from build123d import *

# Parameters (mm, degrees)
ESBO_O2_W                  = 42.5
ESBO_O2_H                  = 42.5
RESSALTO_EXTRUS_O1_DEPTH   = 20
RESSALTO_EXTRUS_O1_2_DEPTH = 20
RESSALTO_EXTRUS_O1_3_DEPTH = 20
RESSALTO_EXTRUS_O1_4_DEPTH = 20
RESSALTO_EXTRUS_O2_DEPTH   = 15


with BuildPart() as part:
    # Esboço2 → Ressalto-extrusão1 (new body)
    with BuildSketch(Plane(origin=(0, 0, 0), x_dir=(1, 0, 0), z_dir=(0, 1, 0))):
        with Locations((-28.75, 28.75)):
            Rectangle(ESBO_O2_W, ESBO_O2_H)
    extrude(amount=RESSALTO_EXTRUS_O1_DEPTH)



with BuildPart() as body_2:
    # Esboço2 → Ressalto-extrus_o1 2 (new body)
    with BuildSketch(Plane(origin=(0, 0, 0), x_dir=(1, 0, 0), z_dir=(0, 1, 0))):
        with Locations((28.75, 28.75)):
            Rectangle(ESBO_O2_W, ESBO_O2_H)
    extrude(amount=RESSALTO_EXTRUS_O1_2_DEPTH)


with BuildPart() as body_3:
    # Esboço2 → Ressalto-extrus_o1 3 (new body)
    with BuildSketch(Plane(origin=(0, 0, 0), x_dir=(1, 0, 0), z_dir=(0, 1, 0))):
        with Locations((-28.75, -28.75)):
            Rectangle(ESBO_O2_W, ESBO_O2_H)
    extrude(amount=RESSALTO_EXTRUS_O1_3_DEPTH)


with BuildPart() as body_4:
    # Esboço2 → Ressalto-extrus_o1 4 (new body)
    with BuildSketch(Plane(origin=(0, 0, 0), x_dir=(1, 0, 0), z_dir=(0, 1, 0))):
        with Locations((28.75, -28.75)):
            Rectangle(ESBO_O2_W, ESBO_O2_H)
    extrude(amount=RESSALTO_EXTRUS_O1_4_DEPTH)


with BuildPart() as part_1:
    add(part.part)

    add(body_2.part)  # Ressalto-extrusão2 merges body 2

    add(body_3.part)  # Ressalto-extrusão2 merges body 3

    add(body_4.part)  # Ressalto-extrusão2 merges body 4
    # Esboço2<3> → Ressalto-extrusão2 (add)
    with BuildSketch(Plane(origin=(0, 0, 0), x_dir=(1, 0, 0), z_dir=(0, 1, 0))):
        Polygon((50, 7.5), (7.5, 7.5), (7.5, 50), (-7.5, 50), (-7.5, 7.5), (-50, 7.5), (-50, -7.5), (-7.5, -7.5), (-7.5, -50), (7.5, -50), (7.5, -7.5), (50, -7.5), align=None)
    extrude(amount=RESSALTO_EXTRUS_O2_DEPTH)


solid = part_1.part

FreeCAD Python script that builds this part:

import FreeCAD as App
import Part
import Sketcher
from FreeCAD import Vector

doc = App.newDocument("Part")
body = doc.addObject("PartDesign::Body", "Body")

sketch1 = body.newObject("Sketcher::SketchObject", "Sketch")
sketch1.AttachmentSupport = (doc.getObject("XZ_Plane"), [""])
sketch1.MapMode = "FlatFace"
sketch1.addGeometry([
    Part.LineSegment(Vector(-50, -50, 0), Vector(-50, -8, 0)),
    Part.LineSegment(Vector(-50, -8, 0), Vector(-8, -8, 0)),
    Part.LineSegment(Vector(-8, -8, 0), Vector(-8, -50, 0)),
    Part.LineSegment(Vector(-8, -50, 0), Vector(-50, -50, 0)),
], False)
sketch1.addConstraint([
    Sketcher.Constraint("Coincident", 0, 2, 1, 1),
    Sketcher.Constraint("Coincident", 1, 2, 2, 1),
    Sketcher.Constraint("Coincident", 2, 2, 3, 1),
    Sketcher.Constraint("Coincident", 3, 2, 0, 1),
    Sketcher.Constraint("Vertical", 0),
    Sketcher.Constraint("Horizontal", 1),
    Sketcher.Constraint("Vertical", 2),
    Sketcher.Constraint("Horizontal", 3),
    Sketcher.Constraint("Equal", 3, 0),
    Sketcher.Constraint("DistanceX", 1, 1, 1, 2, 42.5),
    Sketcher.Constraint("DistanceX", 0, 2, -1, 1, 50.0),
    Sketcher.Constraint("DistanceY", 2, 2, -1, 1, 50.0),
])
pad1 = body.newObject("PartDesign::Pad", "Pad")
pad1.Profile = sketch1
pad1.Length = 20
pad1.Reversed = True
body2 = doc.addObject("PartDesign::Body", "Body001")

sketch2 = body2.newObject("Sketcher::SketchObject", "Sketch001")
sketch2.AttachmentSupport = (doc.getObject("XZ_Plane001"), [""])
sketch2.MapMode = "FlatFace"
sketch2.addGeometry([
    Part.LineSegment(Vector(8, -50, 0), Vector(8, -8, 0)),
    Part.LineSegment(Vector(8, -8, 0), Vector(50, -8, 0)),
    Part.LineSegment(Vector(50, -8, 0), Vector(50, -50, 0)),
    Part.LineSegment(Vector(50, -50, 0), Vector(8, -50, 0)),
], False)
sketch2.addConstraint([
    Sketcher.Constraint("Coincident", 0, 2, 1, 1),
    Sketcher.Constraint("Coincident", 1, 2, 2, 1),
    Sketcher.Constraint("Coincident", 2, 2, 3, 1),
    Sketcher.Constraint("Coincident", 3, 2, 0, 1),
    Sketcher.Constraint("Vertical", 0),
    Sketcher.Constraint("Horizontal", 1),
    Sketcher.Constraint("Vertical", 2),
    Sketcher.Constraint("Horizontal", 3),
    Sketcher.Constraint("Equal", 3, 0),
    Sketcher.Constraint("DistanceX", 1, 1, 1, 2, 42.5),
    Sketcher.Constraint("DistanceX", -1, 1, 1, 2, 50.0),
    Sketcher.Constraint("DistanceY", 2, 2, -1, 1, 50.0),
])
pad2 = body2.newObject("PartDesign::Pad", "Pad001")
pad2.Profile = sketch2
pad2.Length = 20
pad2.Reversed = True
body3 = doc.addObject("PartDesign::Body", "Body002")

sketch3 = body3.newObject("Sketcher::SketchObject", "Sketch002")
sketch3.AttachmentSupport = (doc.getObject("XZ_Plane002"), [""])
sketch3.MapMode = "FlatFace"
sketch3.addGeometry([
    Part.LineSegment(Vector(-50, 8, 0), Vector(-50, 50, 0)),
    Part.LineSegment(Vector(-50, 50, 0), Vector(-8, 50, 0)),
    Part.LineSegment(Vector(-8, 50, 0), Vector(-8, 8, 0)),
    Part.LineSegment(Vector(-8, 8, 0), Vector(-50, 8, 0)),
], False)
sketch3.addConstraint([
    Sketcher.Constraint("Coincident", 0, 2, 1, 1),
    Sketcher.Constraint("Coincident", 1, 2, 2, 1),
    Sketcher.Constraint("Coincident", 2, 2, 3, 1),
    Sketcher.Constraint("Coincident", 3, 2, 0, 1),
    Sketcher.Constraint("Vertical", 0),
    Sketcher.Constraint("Horizontal", 1),
    Sketcher.Constraint("Vertical", 2),
    Sketcher.Constraint("Horizontal", 3),
    Sketcher.Constraint("Equal", 3, 0),
    Sketcher.Constraint("DistanceX", 1, 1, 1, 2, 42.5),
    Sketcher.Constraint("DistanceX", 0, 2, -1, 1, 50.0),
    Sketcher.Constraint("DistanceY", -1, 1, 0, 2, 50.0),
])
pad3 = body3.newObject("PartDesign::Pad", "Pad002")
pad3.Profile = sketch3
pad3.Length = 20
pad3.Reversed = True
body4 = doc.addObject("PartDesign::Body", "Body003")

sketch4 = body4.newObject("Sketcher::SketchObject", "Sketch003")
sketch4.AttachmentSupport = (doc.getObject("XZ_Plane003"), [""])
sketch4.MapMode = "FlatFace"
sketch4.addGeometry([
    Part.LineSegment(Vector(8, 8, 0), Vector(8, 50, 0)),
    Part.LineSegment(Vector(8, 50, 0), Vector(50, 50, 0)),
    Part.LineSegment(Vector(50, 50, 0), Vector(50, 8, 0)),
    Part.LineSegment(Vector(50, 8, 0), Vector(8, 8, 0)),
], False)
sketch4.addConstraint([
    Sketcher.Constraint("Coincident", 0, 2, 1, 1),
    Sketcher.Constraint("Coincident", 1, 2, 2, 1),
    Sketcher.Constraint("Coincident", 2, 2, 3, 1),
    Sketcher.Constraint("Coincident", 3, 2, 0, 1),
    Sketcher.Constraint("Vertical", 0),
    Sketcher.Constraint("Horizontal", 1),
    Sketcher.Constraint("Vertical", 2),
    Sketcher.Constraint("Horizontal", 3),
    Sketcher.Constraint("Equal", 3, 0),
    Sketcher.Constraint("DistanceX", 1, 1, 1, 2, 42.5),
    Sketcher.Constraint("DistanceY", -1, 1, 0, 2, 50.0),
    Sketcher.Constraint("DistanceX", -1, 1, 1, 2, 50.0),
])
pad4 = body4.newObject("PartDesign::Pad", "Pad003")
pad4.Profile = sketch4
pad4.Length = 20
pad4.Reversed = True
body.AllowCompound = True
doc.recompute()

boolean = body.newObject("PartDesign::Boolean", "Boolean")
boolean.Type = "Fuse"
boolean.addObjects([body2])
doc.recompute()

boolean2 = body.newObject("PartDesign::Boolean", "Boolean001")
boolean2.Type = "Fuse"
boolean2.addObjects([body3])
doc.recompute()

boolean3 = body.newObject("PartDesign::Boolean", "Boolean002")
boolean3.Type = "Fuse"
boolean3.addObjects([body4])

sketch5 = body.newObject("Sketcher::SketchObject", "Sketch004")
sketch5.AttachmentSupport = (doc.getObject("XZ_Plane"), [""])
sketch5.MapMode = "FlatFace"
sketch5.addGeometry([
    Part.LineSegment(Vector(50, -8, 0), Vector(8, -8, 0)),
    Part.LineSegment(Vector(8, -8, 0), Vector(8, -50, 0)),
    Part.LineSegment(Vector(8, -50, 0), Vector(-8, -50, 0)),
    Part.LineSegment(Vector(-8, -50, 0), Vector(-8, -8, 0)),
    Part.LineSegment(Vector(-8, -8, 0), Vector(-50, -8, 0)),
    Part.LineSegment(Vector(-50, -8, 0), Vector(-50, 8, 0)),
    Part.LineSegment(Vector(-50, 8, 0), Vector(-8, 8, 0)),
    Part.LineSegment(Vector(-8, 8, 0), Vector(-8, 50, 0)),
    Part.LineSegment(Vector(-8, 50, 0), Vector(8, 50, 0)),
    Part.LineSegment(Vector(8, 50, 0), Vector(8, 8, 0)),
    Part.LineSegment(Vector(8, 8, 0), Vector(50, 8, 0)),
    Part.LineSegment(Vector(50, 8, 0), Vector(50, -8, 0)),
], False)
sketch5.addConstraint([
    Sketcher.Constraint("Coincident", 0, 2, 1, 1),
    Sketcher.Constraint("Coincident", 1, 2, 2, 1),
    Sketcher.Constraint("Coincident", 2, 2, 3, 1),
    Sketcher.Constraint("Coincident", 3, 2, 4, 1),
    Sketcher.Constraint("Coincident", 4, 2, 5, 1),
    Sketcher.Constraint("Coincident", 5, 2, 6, 1),
    Sketcher.Constraint("Coincident", 6, 2, 7, 1),
    Sketcher.Constraint("Coincident", 7, 2, 8, 1),
    Sketcher.Constraint("Coincident", 8, 2, 9, 1),
    Sketcher.Constraint("Coincident", 9, 2, 10, 1),
    Sketcher.Constraint("Coincident", 10, 2, 11, 1),
    Sketcher.Constraint("Coincident", 11, 2, 0, 1),
    Sketcher.Constraint("Horizontal", 0),
    Sketcher.Constraint("Vertical", 1),
    Sketcher.Constraint("Horizontal", 2),
    Sketcher.Constraint("Vertical", 3),
    Sketcher.Constraint("Horizontal", 4),
    Sketcher.Constraint("Vertical", 5),
    Sketcher.Constraint("Horizontal", 6),
    Sketcher.Constraint("Vertical", 7),
    Sketcher.Constraint("Horizontal", 8),
    Sketcher.Constraint("Vertical", 9),
    Sketcher.Constraint("Horizontal", 10),
    Sketcher.Constraint("Vertical", 11),
    Sketcher.Constraint("Symmetric", 0, 2, 6, 2, -1, 1),
    Sketcher.Constraint("Symmetric", 2, 2, 8, 2, -1, 1),
    Sketcher.Constraint("Symmetric", 4, 2, 10, 2, -1, 1),
    Sketcher.Constraint("Symmetric", 0, 2, 3, 2, -2),
    Sketcher.Constraint("Equal", 10, 1),
    Sketcher.Constraint("Equal", 8, 5),
    Sketcher.Constraint("DistanceX", 2, 2, 2, 1, 15.0),
    Sketcher.Constraint("DistanceX", 0, 2, 0, 1, 42.5),
])
pad5 = body.newObject("PartDesign::Pad", "Pad004")
pad5.Profile = sketch5
pad5.Length = 15
pad5.Reversed = True

doc.recompute()
